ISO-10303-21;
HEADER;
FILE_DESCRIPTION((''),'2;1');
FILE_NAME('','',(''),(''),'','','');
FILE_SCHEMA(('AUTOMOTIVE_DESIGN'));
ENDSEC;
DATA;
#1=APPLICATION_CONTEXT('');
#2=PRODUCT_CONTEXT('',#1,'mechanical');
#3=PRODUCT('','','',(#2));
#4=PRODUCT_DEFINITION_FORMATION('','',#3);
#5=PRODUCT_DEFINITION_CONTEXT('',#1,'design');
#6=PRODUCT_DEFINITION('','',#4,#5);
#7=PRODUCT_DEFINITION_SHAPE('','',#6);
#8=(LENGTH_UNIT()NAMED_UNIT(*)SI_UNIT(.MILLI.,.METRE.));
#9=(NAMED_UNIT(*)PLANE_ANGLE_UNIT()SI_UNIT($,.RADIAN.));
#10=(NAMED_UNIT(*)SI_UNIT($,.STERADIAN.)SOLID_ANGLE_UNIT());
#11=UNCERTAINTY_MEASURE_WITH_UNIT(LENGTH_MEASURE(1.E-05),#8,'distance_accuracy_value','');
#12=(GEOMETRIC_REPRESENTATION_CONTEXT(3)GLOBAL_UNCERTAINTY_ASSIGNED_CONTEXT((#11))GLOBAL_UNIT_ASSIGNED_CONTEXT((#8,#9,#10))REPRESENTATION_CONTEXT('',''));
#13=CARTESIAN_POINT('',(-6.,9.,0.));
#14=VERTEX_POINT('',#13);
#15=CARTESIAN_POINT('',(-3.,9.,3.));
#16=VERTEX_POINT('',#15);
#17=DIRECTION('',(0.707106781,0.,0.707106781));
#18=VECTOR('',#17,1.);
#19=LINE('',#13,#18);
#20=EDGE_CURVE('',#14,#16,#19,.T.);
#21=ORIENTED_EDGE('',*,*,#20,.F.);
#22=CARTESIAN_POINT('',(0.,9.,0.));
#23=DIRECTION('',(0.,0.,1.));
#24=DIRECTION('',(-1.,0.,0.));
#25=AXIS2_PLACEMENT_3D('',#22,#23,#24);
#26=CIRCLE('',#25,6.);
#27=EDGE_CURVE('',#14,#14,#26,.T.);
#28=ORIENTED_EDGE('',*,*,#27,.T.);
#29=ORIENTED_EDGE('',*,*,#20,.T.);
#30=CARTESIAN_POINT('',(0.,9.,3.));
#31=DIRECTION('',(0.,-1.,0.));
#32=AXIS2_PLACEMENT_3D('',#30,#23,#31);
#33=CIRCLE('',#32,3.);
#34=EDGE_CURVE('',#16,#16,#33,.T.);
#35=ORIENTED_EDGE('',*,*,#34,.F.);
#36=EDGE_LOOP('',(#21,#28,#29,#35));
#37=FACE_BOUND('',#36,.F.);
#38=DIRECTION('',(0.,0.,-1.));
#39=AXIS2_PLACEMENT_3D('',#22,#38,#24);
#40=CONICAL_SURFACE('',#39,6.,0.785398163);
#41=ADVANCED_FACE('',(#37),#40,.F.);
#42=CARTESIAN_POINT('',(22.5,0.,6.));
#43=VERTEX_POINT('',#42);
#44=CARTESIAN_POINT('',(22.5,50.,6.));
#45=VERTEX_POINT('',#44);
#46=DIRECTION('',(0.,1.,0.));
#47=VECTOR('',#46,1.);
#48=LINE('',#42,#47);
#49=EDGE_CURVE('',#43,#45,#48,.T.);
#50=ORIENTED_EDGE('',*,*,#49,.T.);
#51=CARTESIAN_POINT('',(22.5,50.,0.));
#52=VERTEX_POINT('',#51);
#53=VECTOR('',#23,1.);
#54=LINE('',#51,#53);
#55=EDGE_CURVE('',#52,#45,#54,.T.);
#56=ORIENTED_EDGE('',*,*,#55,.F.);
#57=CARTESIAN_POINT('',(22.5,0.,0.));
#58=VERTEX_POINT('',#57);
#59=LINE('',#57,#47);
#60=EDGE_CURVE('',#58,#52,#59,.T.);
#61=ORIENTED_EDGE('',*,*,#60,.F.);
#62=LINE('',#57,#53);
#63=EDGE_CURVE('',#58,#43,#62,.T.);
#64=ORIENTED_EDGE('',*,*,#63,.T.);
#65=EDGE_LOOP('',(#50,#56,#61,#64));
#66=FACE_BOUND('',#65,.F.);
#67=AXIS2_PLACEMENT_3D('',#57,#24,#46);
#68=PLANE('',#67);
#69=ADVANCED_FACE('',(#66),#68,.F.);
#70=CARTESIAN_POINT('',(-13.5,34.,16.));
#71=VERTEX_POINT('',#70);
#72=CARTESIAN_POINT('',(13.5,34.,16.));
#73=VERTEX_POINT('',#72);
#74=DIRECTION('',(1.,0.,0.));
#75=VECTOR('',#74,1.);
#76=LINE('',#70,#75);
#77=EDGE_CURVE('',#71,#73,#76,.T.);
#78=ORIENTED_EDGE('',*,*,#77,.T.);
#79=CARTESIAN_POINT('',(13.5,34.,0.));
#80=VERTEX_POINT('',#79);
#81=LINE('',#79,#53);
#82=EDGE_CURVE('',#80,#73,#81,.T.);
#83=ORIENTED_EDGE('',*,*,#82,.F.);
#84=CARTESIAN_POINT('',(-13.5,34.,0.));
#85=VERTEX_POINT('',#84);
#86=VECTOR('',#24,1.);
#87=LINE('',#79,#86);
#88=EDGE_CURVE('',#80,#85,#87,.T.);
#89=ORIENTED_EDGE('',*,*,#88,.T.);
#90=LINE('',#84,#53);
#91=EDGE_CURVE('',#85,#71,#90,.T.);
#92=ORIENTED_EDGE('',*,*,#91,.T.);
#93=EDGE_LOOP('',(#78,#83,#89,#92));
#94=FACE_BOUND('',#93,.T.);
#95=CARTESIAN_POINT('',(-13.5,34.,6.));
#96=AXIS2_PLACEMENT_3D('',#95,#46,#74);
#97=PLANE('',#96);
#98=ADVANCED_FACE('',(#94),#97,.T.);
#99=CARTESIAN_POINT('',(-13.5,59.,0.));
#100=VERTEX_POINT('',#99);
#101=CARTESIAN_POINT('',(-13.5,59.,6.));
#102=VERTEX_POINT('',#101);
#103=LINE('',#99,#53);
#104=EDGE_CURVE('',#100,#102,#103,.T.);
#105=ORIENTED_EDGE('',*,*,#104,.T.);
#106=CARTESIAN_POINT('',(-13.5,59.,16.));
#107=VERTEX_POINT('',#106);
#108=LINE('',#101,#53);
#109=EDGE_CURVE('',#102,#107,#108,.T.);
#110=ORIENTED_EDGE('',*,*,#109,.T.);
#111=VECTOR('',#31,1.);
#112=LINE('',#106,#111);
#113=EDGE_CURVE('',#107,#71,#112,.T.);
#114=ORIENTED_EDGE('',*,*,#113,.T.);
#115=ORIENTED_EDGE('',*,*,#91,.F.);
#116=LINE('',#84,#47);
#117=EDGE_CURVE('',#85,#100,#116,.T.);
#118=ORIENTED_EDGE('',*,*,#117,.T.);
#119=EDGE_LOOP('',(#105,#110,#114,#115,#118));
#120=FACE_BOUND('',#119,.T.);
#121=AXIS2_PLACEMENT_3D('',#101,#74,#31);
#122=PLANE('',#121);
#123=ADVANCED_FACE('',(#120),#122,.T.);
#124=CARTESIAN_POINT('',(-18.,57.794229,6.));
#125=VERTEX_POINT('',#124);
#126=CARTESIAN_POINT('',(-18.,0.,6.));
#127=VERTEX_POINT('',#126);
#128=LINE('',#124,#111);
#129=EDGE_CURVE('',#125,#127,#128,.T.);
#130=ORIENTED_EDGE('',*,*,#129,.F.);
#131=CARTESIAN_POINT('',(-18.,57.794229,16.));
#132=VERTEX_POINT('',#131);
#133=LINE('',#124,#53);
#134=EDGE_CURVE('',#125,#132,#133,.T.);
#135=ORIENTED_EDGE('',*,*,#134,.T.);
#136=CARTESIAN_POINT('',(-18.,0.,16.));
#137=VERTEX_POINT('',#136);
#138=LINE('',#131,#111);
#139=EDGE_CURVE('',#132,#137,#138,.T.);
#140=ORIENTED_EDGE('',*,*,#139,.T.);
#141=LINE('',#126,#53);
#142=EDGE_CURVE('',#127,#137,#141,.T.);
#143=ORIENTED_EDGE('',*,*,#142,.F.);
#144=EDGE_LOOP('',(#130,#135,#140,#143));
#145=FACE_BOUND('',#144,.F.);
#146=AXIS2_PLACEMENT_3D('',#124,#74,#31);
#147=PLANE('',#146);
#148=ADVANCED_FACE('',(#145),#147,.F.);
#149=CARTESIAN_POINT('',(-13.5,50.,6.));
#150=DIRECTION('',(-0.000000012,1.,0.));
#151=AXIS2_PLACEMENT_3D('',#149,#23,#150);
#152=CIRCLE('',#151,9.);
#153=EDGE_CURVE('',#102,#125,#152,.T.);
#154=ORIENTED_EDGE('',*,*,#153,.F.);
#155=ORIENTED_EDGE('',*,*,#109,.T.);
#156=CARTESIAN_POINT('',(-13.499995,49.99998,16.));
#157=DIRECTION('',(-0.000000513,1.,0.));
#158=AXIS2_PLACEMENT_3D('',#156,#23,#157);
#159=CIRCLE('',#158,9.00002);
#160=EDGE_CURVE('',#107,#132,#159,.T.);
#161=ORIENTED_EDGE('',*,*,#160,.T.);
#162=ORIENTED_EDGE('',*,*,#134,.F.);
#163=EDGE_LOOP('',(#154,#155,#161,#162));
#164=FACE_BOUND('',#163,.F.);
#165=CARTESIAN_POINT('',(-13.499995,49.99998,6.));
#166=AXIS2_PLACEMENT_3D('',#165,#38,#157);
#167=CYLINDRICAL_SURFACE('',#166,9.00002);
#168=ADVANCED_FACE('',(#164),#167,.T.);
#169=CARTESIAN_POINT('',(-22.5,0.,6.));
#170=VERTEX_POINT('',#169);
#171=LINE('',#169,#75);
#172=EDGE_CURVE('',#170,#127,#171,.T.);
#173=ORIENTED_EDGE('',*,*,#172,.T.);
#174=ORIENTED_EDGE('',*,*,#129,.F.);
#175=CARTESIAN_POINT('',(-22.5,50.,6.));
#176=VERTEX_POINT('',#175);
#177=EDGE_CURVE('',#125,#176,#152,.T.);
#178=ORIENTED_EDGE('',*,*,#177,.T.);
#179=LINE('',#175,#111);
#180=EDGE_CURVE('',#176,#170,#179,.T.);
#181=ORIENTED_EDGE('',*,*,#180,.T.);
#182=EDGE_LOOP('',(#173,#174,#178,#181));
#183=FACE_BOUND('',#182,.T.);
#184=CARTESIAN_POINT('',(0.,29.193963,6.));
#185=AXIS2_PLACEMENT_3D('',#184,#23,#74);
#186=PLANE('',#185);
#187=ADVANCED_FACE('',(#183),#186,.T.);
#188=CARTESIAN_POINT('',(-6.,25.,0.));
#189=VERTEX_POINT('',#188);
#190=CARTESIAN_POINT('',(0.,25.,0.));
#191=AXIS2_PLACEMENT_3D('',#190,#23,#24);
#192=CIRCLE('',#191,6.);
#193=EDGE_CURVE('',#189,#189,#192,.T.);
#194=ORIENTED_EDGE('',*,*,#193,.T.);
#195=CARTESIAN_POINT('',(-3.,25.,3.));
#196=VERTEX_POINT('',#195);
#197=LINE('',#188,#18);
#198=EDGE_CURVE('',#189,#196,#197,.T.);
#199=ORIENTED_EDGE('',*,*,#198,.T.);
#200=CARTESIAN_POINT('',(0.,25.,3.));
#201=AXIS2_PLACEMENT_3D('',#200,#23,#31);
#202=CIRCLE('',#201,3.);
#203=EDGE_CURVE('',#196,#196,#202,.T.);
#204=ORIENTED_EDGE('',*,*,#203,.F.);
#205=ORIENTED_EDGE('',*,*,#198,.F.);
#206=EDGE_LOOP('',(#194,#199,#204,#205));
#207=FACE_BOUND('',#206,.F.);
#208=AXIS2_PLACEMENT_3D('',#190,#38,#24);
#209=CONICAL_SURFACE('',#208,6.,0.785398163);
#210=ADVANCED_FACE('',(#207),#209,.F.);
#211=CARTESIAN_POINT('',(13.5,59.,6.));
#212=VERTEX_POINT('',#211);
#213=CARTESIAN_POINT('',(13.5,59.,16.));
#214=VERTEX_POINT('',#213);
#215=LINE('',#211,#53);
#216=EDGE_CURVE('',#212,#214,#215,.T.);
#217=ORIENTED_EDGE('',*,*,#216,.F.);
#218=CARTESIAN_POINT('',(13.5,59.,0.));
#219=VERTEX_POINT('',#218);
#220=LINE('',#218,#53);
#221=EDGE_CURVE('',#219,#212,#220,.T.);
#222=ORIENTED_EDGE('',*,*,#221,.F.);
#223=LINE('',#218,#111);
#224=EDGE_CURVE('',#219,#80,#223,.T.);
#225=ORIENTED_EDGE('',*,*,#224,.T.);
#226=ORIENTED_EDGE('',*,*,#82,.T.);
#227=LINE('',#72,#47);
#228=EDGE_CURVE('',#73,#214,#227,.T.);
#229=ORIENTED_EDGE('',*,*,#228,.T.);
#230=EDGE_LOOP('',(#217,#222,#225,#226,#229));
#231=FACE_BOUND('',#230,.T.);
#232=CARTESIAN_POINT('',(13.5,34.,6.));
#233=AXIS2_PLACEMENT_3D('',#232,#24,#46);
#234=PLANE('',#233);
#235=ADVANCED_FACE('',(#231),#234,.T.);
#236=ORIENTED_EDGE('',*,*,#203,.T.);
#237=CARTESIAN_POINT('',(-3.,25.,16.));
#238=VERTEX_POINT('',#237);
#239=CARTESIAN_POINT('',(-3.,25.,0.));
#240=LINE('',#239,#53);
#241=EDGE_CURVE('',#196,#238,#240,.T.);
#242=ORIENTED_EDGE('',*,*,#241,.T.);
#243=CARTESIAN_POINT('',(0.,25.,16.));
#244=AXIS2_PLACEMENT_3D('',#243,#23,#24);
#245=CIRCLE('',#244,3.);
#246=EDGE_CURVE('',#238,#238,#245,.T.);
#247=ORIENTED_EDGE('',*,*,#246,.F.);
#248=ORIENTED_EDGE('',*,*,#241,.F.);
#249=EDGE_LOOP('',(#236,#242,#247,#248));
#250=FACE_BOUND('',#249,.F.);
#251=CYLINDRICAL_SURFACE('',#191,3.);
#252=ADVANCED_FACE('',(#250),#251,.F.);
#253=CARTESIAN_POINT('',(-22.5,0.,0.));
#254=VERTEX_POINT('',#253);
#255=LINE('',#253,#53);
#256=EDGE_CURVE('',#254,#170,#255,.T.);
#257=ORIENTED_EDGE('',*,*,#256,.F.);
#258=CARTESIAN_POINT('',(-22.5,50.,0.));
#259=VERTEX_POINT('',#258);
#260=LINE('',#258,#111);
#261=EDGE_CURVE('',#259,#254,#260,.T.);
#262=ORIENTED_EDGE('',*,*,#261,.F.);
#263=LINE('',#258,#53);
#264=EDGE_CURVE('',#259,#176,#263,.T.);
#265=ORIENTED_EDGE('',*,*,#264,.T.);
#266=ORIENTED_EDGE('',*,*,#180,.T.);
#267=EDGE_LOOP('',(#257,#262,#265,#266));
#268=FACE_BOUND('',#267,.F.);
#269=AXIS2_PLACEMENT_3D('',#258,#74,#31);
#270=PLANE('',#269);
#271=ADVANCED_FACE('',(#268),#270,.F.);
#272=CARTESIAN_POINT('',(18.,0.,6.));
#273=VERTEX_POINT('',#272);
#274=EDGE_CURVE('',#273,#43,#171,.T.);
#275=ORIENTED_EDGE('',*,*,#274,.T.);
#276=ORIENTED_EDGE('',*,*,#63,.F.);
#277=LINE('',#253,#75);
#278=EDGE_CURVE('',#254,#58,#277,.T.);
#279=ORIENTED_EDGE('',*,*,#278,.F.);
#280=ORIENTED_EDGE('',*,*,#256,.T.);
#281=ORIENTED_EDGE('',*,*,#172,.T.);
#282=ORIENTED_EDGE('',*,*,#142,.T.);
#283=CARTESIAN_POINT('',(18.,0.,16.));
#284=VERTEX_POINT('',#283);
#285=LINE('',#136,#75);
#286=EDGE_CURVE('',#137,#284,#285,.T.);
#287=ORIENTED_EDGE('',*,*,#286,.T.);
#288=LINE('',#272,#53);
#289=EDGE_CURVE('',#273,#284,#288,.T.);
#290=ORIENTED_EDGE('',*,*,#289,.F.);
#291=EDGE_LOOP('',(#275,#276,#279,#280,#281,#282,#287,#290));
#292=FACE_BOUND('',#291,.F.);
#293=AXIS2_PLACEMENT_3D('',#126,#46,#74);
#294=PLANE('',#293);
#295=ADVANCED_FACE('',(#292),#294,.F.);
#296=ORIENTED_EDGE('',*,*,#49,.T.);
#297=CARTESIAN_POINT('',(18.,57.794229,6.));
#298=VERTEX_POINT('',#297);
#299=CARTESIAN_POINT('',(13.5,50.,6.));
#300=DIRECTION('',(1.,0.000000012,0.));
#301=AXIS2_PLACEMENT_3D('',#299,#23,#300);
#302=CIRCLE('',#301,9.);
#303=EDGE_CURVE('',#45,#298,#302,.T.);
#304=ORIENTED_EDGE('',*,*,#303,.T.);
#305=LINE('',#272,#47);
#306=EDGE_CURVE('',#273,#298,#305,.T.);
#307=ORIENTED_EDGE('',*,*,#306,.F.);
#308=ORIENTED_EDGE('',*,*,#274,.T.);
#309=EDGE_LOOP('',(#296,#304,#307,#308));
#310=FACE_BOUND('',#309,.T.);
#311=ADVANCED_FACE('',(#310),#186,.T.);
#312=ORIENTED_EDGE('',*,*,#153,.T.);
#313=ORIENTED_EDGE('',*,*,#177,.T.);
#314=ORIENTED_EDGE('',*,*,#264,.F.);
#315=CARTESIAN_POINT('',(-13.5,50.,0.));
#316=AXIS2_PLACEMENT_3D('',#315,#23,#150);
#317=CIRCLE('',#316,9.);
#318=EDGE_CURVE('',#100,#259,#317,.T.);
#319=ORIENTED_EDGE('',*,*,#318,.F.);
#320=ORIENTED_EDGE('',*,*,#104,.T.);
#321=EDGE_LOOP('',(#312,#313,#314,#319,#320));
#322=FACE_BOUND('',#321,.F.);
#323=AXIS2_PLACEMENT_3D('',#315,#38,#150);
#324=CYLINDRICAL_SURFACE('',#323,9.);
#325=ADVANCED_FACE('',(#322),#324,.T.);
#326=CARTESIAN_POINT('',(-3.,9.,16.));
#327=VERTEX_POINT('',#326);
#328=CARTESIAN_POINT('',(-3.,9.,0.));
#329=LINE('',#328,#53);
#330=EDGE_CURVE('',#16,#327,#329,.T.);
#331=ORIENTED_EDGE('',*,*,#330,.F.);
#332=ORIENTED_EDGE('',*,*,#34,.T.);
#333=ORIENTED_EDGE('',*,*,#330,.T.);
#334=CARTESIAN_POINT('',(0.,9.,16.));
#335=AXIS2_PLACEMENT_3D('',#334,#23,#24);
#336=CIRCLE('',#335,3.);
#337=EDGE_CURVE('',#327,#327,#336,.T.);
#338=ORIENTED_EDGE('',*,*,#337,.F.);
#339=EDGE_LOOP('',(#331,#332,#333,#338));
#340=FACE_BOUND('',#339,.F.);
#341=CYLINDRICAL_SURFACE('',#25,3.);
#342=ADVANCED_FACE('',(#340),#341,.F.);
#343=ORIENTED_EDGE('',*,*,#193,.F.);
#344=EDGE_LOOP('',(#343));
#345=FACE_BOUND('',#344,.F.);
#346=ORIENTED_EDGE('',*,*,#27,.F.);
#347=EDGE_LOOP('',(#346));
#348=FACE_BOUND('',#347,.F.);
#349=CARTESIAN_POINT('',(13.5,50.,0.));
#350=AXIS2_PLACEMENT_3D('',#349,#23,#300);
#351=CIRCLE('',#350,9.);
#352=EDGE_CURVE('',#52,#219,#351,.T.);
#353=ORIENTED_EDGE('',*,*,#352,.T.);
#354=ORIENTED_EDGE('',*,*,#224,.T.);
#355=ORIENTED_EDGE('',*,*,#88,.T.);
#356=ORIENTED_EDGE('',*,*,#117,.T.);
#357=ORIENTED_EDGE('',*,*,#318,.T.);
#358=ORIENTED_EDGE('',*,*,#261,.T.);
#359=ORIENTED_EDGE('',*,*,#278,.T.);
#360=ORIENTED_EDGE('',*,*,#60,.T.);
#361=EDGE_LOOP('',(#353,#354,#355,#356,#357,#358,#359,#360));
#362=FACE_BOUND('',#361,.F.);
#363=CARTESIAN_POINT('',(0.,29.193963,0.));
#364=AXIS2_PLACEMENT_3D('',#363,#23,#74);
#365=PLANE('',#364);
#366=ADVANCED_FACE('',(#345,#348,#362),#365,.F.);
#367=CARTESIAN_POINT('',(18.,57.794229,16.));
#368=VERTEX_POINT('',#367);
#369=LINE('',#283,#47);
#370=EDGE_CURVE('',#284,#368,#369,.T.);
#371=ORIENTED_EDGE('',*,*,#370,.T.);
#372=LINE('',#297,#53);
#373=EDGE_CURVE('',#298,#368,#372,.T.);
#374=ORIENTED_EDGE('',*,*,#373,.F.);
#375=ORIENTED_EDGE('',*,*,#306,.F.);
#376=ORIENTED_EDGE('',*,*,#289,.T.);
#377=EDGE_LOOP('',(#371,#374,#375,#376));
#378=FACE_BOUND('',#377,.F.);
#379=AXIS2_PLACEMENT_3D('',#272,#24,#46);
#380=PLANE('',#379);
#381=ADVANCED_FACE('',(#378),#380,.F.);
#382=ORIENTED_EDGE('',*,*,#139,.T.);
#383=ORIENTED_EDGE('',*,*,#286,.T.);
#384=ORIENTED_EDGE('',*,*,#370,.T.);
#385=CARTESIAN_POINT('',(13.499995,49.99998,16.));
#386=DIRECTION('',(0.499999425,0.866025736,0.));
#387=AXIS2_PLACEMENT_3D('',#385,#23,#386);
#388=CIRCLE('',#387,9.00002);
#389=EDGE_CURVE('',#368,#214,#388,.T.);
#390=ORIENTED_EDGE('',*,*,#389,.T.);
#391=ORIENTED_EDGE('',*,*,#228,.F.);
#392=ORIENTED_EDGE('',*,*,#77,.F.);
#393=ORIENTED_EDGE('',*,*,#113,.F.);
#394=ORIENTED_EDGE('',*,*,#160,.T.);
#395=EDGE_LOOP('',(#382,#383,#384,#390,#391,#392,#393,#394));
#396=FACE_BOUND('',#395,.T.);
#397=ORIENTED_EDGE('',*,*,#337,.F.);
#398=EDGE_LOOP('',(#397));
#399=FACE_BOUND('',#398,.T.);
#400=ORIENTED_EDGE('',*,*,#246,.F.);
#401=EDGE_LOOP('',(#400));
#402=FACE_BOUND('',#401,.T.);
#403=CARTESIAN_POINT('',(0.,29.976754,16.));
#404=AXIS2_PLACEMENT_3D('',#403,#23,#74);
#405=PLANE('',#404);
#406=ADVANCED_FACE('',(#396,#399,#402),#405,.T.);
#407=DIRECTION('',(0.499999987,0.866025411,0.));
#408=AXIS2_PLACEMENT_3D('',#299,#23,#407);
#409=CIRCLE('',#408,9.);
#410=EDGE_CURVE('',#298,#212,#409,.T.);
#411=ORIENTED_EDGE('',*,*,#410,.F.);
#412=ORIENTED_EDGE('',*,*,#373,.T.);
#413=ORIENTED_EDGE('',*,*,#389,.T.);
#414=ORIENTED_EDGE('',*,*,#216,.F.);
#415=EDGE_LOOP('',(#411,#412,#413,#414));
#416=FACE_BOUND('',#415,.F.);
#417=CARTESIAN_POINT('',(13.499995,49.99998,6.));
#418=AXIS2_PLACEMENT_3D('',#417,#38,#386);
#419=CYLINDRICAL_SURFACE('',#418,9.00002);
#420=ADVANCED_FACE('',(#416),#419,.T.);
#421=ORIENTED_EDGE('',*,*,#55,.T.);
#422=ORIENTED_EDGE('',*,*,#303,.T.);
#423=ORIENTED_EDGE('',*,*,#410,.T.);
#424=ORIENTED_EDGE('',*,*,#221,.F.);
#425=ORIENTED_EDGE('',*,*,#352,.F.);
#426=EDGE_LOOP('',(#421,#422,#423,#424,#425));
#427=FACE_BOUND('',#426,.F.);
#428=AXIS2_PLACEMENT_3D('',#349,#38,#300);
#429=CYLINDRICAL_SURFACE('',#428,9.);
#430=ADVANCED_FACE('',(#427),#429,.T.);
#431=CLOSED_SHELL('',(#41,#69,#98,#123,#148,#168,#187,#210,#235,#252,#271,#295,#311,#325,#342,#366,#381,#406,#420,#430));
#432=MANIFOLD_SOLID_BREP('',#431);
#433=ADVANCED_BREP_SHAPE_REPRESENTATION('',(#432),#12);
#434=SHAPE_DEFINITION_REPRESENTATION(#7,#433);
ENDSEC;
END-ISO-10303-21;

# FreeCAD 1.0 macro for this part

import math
import FreeCAD as App
import Part
import Sketcher
Q = App.Units.Quantity

doc = App.newDocument("Part")
body = doc.addObject("PartDesign::Body", "Body")

# Sketch on XY plane
sketch1 = body.newObject("Sketcher::SketchObject", "Sketch")
sketch1.AttachmentSupport = (doc.getObject("XY_Plane"), [""])
sketch1.MapMode = "FlatFace"
sketch1.addGeometry(Part.LineSegment(App.Vector(-22.5, 0, 0), App.Vector(22.5, 0, 0)), False)
sketch1.addGeometry(Part.LineSegment(App.Vector(22.5, 0, 0), App.Vector(22.5, 50, 0)), False)
sketch1.addGeometry(Part.ArcOfCircle(Part.Circle(App.Vector(13.5, 50, 0), App.Vector(0, 0, 1), 9), math.radians(0.000001), math.radians(89.999999)), False)
sketch1.addGeometry(Part.LineSegment(App.Vector(13.5, 59, 0), App.Vector(13.5, 34, 0)), False)
sketch1.addGeometry(Part.LineSegment(App.Vector(13.5, 34, 0), App.Vector(-13.5, 34, 0)), False)
sketch1.addGeometry(Part.LineSegment(App.Vector(-13.5, 34, 0), App.Vector(-13.5, 59, 0)), False)
sketch1.addGeometry(Part.ArcOfCircle(Part.Circle(App.Vector(-13.5, 50, 0), App.Vector(0, 0, 1), 9), math.radians(90.000001), math.radians(179.999999)), False)
sketch1.addGeometry(Part.LineSegment(App.Vector(-22.5, 50, 0), App.Vector(-22.5, 0, 0)), False)
sketch1.addConstraint(Sketcher.Constraint("Coincident", 0, 2, 1, 1))
sketch1.addConstraint(Sketcher.Constraint("Tangent", 1, 2, 2, 1))
sketch1.addConstraint(Sketcher.Constraint("Coincident", 2, 2, 3, 1))
sketch1.addConstraint(Sketcher.Constraint("Coincident", 3, 2, 4, 1))
sketch1.addConstraint(Sketcher.Constraint("Coincident", 4, 2, 5, 1))
sketch1.addConstraint(Sketcher.Constraint("Coincident", 5, 2, 6, 1))
sketch1.addConstraint(Sketcher.Constraint("Tangent", 6, 2, 7, 1))
sketch1.addConstraint(Sketcher.Constraint("Coincident", 7, 2, 0, 1))
sketch1.addConstraint(Sketcher.Constraint("Horizontal", 0))
sketch1.addConstraint(Sketcher.Constraint("Vertical", 1))
sketch1.addConstraint(Sketcher.Constraint("Vertical", 3))
sketch1.addConstraint(Sketcher.Constraint("Horizontal", 4))
sketch1.addConstraint(Sketcher.Constraint("Vertical", 5))
sketch1.addConstraint(Sketcher.Constraint("Vertical", 7))
sketch1.addConstraint(Sketcher.Constraint("Equal", 2, 6))
sketch1.addConstraint(Sketcher.Constraint("Symmetric", 0, 2, 7, 2, -1, 1))
sketch1.addConstraint(Sketcher.Constraint("Symmetric", 2, 2, 5, 2, -2))
sketch1.addConstraint(Sketcher.Constraint("Vertical", 6, 3, 4, 2))
sketch1.addConstraint(Sketcher.Constraint("Radius", 2, Q("9 mm")))
sketch1.addConstraint(Sketcher.Constraint("DistanceX", 0, 1, 0, 2, Q("45 mm")))
sketch1.addConstraint(Sketcher.Constraint("DistanceY", 1, 1, 1, 2, Q("50 mm")))
sketch1.addConstraint(Sketcher.Constraint("DistanceY", 3, 2, 3, 1, Q("25 mm")))
pad1 = body.newObject("PartDesign::Pad", "Pad")
pad1.Profile = sketch1
pad1.Length = 6

# Sketch on XY plane
sketch2 = body.newObject("Sketcher::SketchObject", "Sketch001")
sketch2.AttachmentSupport = (doc.getObject("XY_Plane"), [""])
sketch2.MapMode = "FlatFace"
sketch2.AttachmentOffset = App.Placement(App.Vector(0, 0, 6), App.Rotation())
sketch2.addGeometry(Part.LineSegment(App.Vector(-18, 0, 0), App.Vector(18, 0, 0)), False)
sketch2.addGeometry(Part.LineSegment(App.Vector(18, 0, 0), App.Vector(18, 57.8, 0)), False)
sketch2.addGeometry(Part.ArcOfCircle(Part.Circle(App.Vector(13.5, 50, 0), App.Vector(0, 0, 1), 9), math.radians(60), math.radians(90)), False)
sketch2.addGeometry(Part.LineSegment(App.Vector(13.5, 59, 0), App.Vector(13.5, 34, 0)), False)
sketch2.addGeometry(Part.LineSegment(App.Vector(13.5, 34, 0), App.Vector(-13.5, 34, 0)), False)
sketch2.addGeometry(Part.LineSegment(App.Vector(-13.5, 34, 0), App.Vector(-13.5, 59, 0)), False)
sketch2.addGeometry(Part.ArcOfCircle(Part.Circle(App.Vector(-13.5, 50, 0), App.Vector(0, 0, 1), 9), math.radians(90), math.radians(120)), False)
sketch2.addGeometry(Part.LineSegment(App.Vector(-18, 57.8, 0), App.Vector(-18, 0, 0)), False)
sketch2.addConstraint(Sketcher.Constraint("Coincident", 0, 2, 1, 1))
sketch2.addConstraint(Sketcher.Constraint("Coincident", 1, 2, 2, 1))
sketch2.addConstraint(Sketcher.Constraint("Coincident", 2, 2, 3, 1))
sketch2.addConstraint(Sketcher.Constraint("Coincident", 3, 2, 4, 1))
sketch2.addConstraint(Sketcher.Constraint("Coincident", 4, 2, 5, 1))
sketch2.addConstraint(Sketcher.Constraint("Coincident", 5, 2, 6, 1))
sketch2.addConstraint(Sketcher.Constraint("Coincident", 6, 2, 7, 1))
sketch2.addConstraint(Sketcher.Constraint("Coincident", 7, 2, 0, 1))
sketch2.addConstraint(Sketcher.Constraint("Horizontal", 0))
sketch2.addConstraint(Sketcher.Constraint("Vertical", 1))
sketch2.addConstraint(Sketcher.Constraint("Vertical", 3))
sketch2.addConstraint(Sketcher.Constraint("Horizontal", 4))
sketch2.addConstraint(Sketcher.Constraint("Vertical", 5))
sketch2.addConstraint(Sketcher.Constraint("Vertical", 7))
sketch2.addConstraint(Sketcher.Constraint("Equal", 2, 6))
sketch2.addConstraint(Sketcher.Constraint("Symmetric", 0, 2, 7, 2, -1, 1))
sketch2.addConstraint(Sketcher.Constraint("Symmetric", 2, 3, 6, 3, -2))
sketch2.addConstraint(Sketcher.Constraint("DistanceX", 0, 1, 0, 2, Q("36 mm")))
sketch2.addConstraint(Sketcher.Constraint("DistanceX", 4, 2, 4, 1, Q("27 mm")))
sketch2.addConstraint(Sketcher.Constraint("DistanceY", 3, 2, 3, 1, Q("25 mm")))
sketch2.addConstraint(Sketcher.Constraint("DistanceY", -1, 1, 2, 2, Q("59 mm")))
sketch2.addConstraint(Sketcher.Constraint("DistanceX", -1, 1, 2, 2, Q("13.5 mm")))
sketch2.addConstraint(Sketcher.Constraint("Radius", 2, Q("9.00002 mm")))
sketch2.addConstraint(Sketcher.Constraint("DistanceY", 1, 1, 1, 2, Q("57.794229 mm")))
pad2 = body.newObject("PartDesign::Pad", "Pad001")
pad2.Profile = sketch2
pad2.Length = 10

# Sketch on XY plane
sketch3 = body.newObject("Sketcher::SketchObject", "Sketch002")
sketch3.AttachmentSupport = (doc.getObject("XY_Plane"), [""])
sketch3.MapMode = "FlatFace"
sketch3.addGeometry(Part.Circle(App.Vector(0, 9, 0), App.Vector(0, 0, 1), 3), False)
sketch3.addConstraint(Sketcher.Constraint("PointOnObject", 0, 3, -2))
sketch3.addConstraint(Sketcher.Constraint("Diameter", 0, Q("6 mm")))
sketch3.addConstraint(Sketcher.Constraint("DistanceY", -1, 1, 0, 3, Q("9 mm")))
doc.recompute()
hole = body.newObject("PartDesign::Hole", "Hole")
hole.Profile = sketch3
hole.ThreadType = "None"
hole.Diameter = 6
hole.DepthType = "Dimension"
hole.Depth = 25
hole.DrillPoint = "Flat"
hole.HoleCutType = "Countersink"
hole.HoleCutDiameter = 12
hole.HoleCutCountersinkAngle = 90
hole.Reversed = True
doc.recompute()

linearpattern = body.newObject("PartDesign::LinearPattern", "LinearPattern")
linearpattern.Originals = [hole]
linearpattern.Direction = (doc.getObject("Y_Axis"), [""])
linearpattern.Mode = "offset"
linearpattern.Offset = 16
linearpattern.Occurrences = 2
body.Tip = linearpattern

doc.recompute()
